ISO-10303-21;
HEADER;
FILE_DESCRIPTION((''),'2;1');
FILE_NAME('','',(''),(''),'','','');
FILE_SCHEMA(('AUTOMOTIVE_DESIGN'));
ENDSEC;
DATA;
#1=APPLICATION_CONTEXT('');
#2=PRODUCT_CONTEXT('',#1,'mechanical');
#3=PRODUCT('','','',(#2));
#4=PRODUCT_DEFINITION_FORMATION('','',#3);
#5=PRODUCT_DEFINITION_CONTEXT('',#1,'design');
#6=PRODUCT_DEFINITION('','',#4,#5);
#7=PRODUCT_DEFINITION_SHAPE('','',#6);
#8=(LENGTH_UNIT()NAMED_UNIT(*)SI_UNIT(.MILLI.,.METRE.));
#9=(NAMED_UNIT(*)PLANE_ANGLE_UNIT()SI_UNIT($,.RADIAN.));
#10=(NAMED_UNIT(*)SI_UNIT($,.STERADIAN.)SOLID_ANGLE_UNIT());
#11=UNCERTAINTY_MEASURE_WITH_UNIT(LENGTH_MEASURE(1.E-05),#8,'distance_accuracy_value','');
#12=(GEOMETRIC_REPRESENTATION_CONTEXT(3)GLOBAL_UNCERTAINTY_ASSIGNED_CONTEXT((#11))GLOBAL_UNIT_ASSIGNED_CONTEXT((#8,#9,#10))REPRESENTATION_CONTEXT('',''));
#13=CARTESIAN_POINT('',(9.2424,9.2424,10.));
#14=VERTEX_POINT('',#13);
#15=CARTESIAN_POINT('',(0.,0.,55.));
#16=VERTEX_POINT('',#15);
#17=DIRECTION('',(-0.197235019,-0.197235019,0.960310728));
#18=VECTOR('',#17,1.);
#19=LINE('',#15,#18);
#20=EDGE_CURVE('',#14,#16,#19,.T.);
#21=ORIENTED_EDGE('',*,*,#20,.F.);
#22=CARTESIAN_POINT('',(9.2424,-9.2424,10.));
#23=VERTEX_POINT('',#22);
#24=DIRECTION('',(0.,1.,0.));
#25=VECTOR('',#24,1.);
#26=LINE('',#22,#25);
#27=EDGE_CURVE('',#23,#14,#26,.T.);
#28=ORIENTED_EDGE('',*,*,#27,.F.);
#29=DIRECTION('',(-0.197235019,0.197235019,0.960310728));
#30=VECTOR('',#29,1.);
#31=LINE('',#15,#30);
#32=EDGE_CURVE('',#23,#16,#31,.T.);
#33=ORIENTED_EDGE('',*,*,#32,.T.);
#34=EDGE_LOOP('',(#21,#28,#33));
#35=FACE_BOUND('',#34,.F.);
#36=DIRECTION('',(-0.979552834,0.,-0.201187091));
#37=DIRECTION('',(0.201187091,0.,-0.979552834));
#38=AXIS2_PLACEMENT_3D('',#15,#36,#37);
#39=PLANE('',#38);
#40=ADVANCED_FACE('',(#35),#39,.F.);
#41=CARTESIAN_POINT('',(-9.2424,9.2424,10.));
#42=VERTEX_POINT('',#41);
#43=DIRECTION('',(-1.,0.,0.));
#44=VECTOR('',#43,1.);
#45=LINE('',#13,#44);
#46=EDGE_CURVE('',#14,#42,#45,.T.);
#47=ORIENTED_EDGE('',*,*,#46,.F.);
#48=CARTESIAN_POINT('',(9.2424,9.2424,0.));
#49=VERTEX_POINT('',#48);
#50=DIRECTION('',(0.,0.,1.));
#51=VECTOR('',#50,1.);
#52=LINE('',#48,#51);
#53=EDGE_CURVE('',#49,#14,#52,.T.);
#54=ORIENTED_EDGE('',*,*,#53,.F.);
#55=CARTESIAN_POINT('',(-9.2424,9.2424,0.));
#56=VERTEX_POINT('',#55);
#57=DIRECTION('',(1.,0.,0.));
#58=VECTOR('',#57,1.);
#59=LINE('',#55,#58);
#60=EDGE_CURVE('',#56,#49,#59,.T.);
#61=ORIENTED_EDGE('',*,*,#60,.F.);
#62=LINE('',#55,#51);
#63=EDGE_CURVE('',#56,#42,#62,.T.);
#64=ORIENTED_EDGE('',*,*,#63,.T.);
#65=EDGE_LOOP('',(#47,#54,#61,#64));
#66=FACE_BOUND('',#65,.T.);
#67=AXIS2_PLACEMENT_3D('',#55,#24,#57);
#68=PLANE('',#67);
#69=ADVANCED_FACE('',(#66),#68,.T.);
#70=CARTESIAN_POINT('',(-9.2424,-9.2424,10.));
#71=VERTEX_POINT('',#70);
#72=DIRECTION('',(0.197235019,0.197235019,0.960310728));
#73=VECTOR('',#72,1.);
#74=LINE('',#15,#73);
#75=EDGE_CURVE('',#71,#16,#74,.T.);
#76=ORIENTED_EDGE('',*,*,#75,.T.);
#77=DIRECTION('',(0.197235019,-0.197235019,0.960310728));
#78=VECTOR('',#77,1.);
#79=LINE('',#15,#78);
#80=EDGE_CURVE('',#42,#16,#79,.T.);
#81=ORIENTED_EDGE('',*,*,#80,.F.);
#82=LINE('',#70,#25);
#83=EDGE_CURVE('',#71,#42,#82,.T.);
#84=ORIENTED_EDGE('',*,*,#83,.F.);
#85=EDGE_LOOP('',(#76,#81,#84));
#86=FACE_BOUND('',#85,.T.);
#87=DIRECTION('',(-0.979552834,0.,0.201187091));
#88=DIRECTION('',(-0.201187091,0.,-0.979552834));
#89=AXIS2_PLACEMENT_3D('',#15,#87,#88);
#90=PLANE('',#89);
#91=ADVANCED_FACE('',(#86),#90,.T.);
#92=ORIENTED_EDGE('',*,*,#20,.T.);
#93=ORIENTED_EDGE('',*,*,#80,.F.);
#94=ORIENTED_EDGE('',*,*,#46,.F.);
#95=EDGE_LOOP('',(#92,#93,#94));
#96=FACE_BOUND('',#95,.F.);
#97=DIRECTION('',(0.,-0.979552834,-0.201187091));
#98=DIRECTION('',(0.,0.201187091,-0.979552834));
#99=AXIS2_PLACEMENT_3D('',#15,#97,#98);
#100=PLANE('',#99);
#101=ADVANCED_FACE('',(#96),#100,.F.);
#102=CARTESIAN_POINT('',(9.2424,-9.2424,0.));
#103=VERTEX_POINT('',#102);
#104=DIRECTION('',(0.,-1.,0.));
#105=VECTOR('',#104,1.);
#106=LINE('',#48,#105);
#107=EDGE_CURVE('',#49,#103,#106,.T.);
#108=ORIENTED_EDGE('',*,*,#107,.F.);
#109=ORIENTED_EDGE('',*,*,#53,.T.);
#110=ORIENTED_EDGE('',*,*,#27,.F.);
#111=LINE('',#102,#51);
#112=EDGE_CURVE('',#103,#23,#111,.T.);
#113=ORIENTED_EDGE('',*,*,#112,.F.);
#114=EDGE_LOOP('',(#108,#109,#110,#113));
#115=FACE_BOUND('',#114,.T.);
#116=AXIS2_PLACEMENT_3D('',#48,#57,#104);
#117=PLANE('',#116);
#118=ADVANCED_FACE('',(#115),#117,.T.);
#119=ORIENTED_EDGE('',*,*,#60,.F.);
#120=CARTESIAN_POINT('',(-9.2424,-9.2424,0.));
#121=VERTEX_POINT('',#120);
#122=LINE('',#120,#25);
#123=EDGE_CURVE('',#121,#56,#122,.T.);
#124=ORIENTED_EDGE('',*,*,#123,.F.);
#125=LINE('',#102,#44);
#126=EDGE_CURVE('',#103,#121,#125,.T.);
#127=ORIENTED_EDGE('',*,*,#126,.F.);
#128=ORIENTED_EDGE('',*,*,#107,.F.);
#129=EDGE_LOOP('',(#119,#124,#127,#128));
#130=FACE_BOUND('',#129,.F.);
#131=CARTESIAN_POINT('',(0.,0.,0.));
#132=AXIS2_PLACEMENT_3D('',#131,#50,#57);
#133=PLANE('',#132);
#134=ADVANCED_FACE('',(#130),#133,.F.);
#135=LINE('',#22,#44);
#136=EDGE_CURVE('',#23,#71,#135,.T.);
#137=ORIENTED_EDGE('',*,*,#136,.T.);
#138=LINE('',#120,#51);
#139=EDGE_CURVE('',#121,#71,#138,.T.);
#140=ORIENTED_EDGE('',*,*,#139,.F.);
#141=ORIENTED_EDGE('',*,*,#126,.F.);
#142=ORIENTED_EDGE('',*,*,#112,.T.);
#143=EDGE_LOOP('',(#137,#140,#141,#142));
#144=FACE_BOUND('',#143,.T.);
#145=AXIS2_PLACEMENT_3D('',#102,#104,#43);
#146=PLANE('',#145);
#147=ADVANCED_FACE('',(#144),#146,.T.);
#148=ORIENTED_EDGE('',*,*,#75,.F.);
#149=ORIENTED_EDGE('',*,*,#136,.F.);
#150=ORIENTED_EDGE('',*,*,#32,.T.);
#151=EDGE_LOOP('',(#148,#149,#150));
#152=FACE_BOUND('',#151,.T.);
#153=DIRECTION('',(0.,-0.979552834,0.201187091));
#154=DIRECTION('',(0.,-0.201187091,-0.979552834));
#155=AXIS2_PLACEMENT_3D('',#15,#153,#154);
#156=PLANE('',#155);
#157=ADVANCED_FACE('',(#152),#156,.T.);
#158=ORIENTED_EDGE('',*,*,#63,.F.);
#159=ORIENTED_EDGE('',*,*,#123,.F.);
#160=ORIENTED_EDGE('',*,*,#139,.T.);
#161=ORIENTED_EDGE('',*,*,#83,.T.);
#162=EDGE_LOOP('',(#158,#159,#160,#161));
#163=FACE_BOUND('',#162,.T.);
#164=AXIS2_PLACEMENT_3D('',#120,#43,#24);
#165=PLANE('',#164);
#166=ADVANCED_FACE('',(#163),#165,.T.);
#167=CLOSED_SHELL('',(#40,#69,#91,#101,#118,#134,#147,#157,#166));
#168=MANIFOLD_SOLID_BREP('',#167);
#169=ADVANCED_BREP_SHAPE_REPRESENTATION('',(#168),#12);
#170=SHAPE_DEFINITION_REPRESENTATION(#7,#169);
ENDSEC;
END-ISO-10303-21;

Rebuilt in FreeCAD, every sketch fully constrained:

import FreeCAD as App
import Part
import Sketcher
from FreeCAD import Vector


def add_polygon(sketch, points):
    """Adds a closed chain of lines whose ends are joined by coincident constraints."""
    first, n = sketch.GeometryCount, len(points)
    for a, b in zip(points, points[1:] + points[:1]):
        sketch.addGeometry(Part.LineSegment(App.Vector(*a, 0), App.Vector(*b, 0)), False)
    for i in range(n):
        sketch.addConstraint(Sketcher.Constraint("Coincident", first + i, 2, first + (i + 1) % n, 1))

doc = App.newDocument("Part")
params = doc.addObject("Spreadsheet::Sheet", "Params")
for row, (alias, value) in enumerate([
    ("pad1_length", "55 mm"),
    ("sketch2_height", "45 mm"),
    ("pocket1_length", "18.4848 mm"),
], start=1):
    params.set(f"A{row}", alias)
    params.set(f"B{row}", "=" + value)
    params.setAlias(f"B{row}", alias)

body = doc.addObject("PartDesign::Body", "Body")

# Sketch on XY plane
sketch1 = body.newObject("Sketcher::SketchObject", "Sketch")
sketch1.AttachmentSupport = (doc.getObject("XY_Plane"), [""])
sketch1.MapMode = "FlatFace"
add_polygon(sketch1, [(9.2424, 9.2424), (-9.2424, 9.2424), (-9.2424, -9.2424), (9.2424, -9.2424)])  # lines 0-3
sketch1.addConstraint([
    Sketcher.Constraint("Horizontal", 0),
    Sketcher.Constraint("Vertical", 1),
    Sketcher.Constraint("Horizontal", 2),
    Sketcher.Constraint("Vertical", 3),
    Sketcher.Constraint("Symmetric", 0, 2, 2, 2, -1, 1),
    Sketcher.Constraint("Equal", 2, 1),
    Sketcher.Constraint("DistanceX", 0, 2, 0, 1, 18.4848),
])
pad1 = body.newObject("PartDesign::Pad", "Pad")
pad1.Profile = sketch1
pad1.setExpression("Length", "Params.pad1_length")

# Sketch on XZ plane
sketch2 = body.newObject("Sketcher::SketchObject", "Sketch001")
sketch2.AttachmentSupport = (doc.getObject("XZ_Plane"), [""])
sketch2.MapMode = "FlatFace"
add_polygon(sketch2, [(9.2424, 55), (9.2424, 10), (0, 55)])  # lines 0-2
add_polygon(sketch2, [(0, 55), (-9.2424, 10), (-9.2424, 55)])  # lines 3-5
sketch2.addConstraint([
    Sketcher.Constraint("Vertical", 0),
    Sketcher.Constraint("Horizontal", 2),
    Sketcher.Constraint("Vertical", 4),
    Sketcher.Constraint("Horizontal", 5),
    Sketcher.Constraint("Coincident", 5, 2, 1, 2),
    Sketcher.Constraint("Symmetric", 0, 2, 3, 2, -2),
    Sketcher.Constraint("PointOnObject", 1, 2, -2),
    Sketcher.Constraint("DistanceY", -1, 1, 0, 2, 10.0),
    Sketcher.Constraint("DistanceY", 0, 2, 0, 1, 45.0),
    Sketcher.Constraint("DistanceX", 2, 1, 2, 2, 9.2424),
])
sketch2.setExpression("Constraints[14]", "Params.sketch2_height")
pocket1 = body.newObject("PartDesign::Pocket", "Pocket")
pocket1.Profile = sketch2
pocket1.setExpression("Length", "Params.pocket1_length")
pocket1.Midplane = True
doc.recompute()

polarpattern = body.newObject("PartDesign::PolarPattern", "PolarPattern")
polarpattern.Originals = [pocket1]
polarpattern.Axis = (doc.getObject("Z_Axis"), [""])
polarpattern.Angle = 90
polarpattern.Occurrences = 2
body.Tip = polarpattern

doc.recompute()
